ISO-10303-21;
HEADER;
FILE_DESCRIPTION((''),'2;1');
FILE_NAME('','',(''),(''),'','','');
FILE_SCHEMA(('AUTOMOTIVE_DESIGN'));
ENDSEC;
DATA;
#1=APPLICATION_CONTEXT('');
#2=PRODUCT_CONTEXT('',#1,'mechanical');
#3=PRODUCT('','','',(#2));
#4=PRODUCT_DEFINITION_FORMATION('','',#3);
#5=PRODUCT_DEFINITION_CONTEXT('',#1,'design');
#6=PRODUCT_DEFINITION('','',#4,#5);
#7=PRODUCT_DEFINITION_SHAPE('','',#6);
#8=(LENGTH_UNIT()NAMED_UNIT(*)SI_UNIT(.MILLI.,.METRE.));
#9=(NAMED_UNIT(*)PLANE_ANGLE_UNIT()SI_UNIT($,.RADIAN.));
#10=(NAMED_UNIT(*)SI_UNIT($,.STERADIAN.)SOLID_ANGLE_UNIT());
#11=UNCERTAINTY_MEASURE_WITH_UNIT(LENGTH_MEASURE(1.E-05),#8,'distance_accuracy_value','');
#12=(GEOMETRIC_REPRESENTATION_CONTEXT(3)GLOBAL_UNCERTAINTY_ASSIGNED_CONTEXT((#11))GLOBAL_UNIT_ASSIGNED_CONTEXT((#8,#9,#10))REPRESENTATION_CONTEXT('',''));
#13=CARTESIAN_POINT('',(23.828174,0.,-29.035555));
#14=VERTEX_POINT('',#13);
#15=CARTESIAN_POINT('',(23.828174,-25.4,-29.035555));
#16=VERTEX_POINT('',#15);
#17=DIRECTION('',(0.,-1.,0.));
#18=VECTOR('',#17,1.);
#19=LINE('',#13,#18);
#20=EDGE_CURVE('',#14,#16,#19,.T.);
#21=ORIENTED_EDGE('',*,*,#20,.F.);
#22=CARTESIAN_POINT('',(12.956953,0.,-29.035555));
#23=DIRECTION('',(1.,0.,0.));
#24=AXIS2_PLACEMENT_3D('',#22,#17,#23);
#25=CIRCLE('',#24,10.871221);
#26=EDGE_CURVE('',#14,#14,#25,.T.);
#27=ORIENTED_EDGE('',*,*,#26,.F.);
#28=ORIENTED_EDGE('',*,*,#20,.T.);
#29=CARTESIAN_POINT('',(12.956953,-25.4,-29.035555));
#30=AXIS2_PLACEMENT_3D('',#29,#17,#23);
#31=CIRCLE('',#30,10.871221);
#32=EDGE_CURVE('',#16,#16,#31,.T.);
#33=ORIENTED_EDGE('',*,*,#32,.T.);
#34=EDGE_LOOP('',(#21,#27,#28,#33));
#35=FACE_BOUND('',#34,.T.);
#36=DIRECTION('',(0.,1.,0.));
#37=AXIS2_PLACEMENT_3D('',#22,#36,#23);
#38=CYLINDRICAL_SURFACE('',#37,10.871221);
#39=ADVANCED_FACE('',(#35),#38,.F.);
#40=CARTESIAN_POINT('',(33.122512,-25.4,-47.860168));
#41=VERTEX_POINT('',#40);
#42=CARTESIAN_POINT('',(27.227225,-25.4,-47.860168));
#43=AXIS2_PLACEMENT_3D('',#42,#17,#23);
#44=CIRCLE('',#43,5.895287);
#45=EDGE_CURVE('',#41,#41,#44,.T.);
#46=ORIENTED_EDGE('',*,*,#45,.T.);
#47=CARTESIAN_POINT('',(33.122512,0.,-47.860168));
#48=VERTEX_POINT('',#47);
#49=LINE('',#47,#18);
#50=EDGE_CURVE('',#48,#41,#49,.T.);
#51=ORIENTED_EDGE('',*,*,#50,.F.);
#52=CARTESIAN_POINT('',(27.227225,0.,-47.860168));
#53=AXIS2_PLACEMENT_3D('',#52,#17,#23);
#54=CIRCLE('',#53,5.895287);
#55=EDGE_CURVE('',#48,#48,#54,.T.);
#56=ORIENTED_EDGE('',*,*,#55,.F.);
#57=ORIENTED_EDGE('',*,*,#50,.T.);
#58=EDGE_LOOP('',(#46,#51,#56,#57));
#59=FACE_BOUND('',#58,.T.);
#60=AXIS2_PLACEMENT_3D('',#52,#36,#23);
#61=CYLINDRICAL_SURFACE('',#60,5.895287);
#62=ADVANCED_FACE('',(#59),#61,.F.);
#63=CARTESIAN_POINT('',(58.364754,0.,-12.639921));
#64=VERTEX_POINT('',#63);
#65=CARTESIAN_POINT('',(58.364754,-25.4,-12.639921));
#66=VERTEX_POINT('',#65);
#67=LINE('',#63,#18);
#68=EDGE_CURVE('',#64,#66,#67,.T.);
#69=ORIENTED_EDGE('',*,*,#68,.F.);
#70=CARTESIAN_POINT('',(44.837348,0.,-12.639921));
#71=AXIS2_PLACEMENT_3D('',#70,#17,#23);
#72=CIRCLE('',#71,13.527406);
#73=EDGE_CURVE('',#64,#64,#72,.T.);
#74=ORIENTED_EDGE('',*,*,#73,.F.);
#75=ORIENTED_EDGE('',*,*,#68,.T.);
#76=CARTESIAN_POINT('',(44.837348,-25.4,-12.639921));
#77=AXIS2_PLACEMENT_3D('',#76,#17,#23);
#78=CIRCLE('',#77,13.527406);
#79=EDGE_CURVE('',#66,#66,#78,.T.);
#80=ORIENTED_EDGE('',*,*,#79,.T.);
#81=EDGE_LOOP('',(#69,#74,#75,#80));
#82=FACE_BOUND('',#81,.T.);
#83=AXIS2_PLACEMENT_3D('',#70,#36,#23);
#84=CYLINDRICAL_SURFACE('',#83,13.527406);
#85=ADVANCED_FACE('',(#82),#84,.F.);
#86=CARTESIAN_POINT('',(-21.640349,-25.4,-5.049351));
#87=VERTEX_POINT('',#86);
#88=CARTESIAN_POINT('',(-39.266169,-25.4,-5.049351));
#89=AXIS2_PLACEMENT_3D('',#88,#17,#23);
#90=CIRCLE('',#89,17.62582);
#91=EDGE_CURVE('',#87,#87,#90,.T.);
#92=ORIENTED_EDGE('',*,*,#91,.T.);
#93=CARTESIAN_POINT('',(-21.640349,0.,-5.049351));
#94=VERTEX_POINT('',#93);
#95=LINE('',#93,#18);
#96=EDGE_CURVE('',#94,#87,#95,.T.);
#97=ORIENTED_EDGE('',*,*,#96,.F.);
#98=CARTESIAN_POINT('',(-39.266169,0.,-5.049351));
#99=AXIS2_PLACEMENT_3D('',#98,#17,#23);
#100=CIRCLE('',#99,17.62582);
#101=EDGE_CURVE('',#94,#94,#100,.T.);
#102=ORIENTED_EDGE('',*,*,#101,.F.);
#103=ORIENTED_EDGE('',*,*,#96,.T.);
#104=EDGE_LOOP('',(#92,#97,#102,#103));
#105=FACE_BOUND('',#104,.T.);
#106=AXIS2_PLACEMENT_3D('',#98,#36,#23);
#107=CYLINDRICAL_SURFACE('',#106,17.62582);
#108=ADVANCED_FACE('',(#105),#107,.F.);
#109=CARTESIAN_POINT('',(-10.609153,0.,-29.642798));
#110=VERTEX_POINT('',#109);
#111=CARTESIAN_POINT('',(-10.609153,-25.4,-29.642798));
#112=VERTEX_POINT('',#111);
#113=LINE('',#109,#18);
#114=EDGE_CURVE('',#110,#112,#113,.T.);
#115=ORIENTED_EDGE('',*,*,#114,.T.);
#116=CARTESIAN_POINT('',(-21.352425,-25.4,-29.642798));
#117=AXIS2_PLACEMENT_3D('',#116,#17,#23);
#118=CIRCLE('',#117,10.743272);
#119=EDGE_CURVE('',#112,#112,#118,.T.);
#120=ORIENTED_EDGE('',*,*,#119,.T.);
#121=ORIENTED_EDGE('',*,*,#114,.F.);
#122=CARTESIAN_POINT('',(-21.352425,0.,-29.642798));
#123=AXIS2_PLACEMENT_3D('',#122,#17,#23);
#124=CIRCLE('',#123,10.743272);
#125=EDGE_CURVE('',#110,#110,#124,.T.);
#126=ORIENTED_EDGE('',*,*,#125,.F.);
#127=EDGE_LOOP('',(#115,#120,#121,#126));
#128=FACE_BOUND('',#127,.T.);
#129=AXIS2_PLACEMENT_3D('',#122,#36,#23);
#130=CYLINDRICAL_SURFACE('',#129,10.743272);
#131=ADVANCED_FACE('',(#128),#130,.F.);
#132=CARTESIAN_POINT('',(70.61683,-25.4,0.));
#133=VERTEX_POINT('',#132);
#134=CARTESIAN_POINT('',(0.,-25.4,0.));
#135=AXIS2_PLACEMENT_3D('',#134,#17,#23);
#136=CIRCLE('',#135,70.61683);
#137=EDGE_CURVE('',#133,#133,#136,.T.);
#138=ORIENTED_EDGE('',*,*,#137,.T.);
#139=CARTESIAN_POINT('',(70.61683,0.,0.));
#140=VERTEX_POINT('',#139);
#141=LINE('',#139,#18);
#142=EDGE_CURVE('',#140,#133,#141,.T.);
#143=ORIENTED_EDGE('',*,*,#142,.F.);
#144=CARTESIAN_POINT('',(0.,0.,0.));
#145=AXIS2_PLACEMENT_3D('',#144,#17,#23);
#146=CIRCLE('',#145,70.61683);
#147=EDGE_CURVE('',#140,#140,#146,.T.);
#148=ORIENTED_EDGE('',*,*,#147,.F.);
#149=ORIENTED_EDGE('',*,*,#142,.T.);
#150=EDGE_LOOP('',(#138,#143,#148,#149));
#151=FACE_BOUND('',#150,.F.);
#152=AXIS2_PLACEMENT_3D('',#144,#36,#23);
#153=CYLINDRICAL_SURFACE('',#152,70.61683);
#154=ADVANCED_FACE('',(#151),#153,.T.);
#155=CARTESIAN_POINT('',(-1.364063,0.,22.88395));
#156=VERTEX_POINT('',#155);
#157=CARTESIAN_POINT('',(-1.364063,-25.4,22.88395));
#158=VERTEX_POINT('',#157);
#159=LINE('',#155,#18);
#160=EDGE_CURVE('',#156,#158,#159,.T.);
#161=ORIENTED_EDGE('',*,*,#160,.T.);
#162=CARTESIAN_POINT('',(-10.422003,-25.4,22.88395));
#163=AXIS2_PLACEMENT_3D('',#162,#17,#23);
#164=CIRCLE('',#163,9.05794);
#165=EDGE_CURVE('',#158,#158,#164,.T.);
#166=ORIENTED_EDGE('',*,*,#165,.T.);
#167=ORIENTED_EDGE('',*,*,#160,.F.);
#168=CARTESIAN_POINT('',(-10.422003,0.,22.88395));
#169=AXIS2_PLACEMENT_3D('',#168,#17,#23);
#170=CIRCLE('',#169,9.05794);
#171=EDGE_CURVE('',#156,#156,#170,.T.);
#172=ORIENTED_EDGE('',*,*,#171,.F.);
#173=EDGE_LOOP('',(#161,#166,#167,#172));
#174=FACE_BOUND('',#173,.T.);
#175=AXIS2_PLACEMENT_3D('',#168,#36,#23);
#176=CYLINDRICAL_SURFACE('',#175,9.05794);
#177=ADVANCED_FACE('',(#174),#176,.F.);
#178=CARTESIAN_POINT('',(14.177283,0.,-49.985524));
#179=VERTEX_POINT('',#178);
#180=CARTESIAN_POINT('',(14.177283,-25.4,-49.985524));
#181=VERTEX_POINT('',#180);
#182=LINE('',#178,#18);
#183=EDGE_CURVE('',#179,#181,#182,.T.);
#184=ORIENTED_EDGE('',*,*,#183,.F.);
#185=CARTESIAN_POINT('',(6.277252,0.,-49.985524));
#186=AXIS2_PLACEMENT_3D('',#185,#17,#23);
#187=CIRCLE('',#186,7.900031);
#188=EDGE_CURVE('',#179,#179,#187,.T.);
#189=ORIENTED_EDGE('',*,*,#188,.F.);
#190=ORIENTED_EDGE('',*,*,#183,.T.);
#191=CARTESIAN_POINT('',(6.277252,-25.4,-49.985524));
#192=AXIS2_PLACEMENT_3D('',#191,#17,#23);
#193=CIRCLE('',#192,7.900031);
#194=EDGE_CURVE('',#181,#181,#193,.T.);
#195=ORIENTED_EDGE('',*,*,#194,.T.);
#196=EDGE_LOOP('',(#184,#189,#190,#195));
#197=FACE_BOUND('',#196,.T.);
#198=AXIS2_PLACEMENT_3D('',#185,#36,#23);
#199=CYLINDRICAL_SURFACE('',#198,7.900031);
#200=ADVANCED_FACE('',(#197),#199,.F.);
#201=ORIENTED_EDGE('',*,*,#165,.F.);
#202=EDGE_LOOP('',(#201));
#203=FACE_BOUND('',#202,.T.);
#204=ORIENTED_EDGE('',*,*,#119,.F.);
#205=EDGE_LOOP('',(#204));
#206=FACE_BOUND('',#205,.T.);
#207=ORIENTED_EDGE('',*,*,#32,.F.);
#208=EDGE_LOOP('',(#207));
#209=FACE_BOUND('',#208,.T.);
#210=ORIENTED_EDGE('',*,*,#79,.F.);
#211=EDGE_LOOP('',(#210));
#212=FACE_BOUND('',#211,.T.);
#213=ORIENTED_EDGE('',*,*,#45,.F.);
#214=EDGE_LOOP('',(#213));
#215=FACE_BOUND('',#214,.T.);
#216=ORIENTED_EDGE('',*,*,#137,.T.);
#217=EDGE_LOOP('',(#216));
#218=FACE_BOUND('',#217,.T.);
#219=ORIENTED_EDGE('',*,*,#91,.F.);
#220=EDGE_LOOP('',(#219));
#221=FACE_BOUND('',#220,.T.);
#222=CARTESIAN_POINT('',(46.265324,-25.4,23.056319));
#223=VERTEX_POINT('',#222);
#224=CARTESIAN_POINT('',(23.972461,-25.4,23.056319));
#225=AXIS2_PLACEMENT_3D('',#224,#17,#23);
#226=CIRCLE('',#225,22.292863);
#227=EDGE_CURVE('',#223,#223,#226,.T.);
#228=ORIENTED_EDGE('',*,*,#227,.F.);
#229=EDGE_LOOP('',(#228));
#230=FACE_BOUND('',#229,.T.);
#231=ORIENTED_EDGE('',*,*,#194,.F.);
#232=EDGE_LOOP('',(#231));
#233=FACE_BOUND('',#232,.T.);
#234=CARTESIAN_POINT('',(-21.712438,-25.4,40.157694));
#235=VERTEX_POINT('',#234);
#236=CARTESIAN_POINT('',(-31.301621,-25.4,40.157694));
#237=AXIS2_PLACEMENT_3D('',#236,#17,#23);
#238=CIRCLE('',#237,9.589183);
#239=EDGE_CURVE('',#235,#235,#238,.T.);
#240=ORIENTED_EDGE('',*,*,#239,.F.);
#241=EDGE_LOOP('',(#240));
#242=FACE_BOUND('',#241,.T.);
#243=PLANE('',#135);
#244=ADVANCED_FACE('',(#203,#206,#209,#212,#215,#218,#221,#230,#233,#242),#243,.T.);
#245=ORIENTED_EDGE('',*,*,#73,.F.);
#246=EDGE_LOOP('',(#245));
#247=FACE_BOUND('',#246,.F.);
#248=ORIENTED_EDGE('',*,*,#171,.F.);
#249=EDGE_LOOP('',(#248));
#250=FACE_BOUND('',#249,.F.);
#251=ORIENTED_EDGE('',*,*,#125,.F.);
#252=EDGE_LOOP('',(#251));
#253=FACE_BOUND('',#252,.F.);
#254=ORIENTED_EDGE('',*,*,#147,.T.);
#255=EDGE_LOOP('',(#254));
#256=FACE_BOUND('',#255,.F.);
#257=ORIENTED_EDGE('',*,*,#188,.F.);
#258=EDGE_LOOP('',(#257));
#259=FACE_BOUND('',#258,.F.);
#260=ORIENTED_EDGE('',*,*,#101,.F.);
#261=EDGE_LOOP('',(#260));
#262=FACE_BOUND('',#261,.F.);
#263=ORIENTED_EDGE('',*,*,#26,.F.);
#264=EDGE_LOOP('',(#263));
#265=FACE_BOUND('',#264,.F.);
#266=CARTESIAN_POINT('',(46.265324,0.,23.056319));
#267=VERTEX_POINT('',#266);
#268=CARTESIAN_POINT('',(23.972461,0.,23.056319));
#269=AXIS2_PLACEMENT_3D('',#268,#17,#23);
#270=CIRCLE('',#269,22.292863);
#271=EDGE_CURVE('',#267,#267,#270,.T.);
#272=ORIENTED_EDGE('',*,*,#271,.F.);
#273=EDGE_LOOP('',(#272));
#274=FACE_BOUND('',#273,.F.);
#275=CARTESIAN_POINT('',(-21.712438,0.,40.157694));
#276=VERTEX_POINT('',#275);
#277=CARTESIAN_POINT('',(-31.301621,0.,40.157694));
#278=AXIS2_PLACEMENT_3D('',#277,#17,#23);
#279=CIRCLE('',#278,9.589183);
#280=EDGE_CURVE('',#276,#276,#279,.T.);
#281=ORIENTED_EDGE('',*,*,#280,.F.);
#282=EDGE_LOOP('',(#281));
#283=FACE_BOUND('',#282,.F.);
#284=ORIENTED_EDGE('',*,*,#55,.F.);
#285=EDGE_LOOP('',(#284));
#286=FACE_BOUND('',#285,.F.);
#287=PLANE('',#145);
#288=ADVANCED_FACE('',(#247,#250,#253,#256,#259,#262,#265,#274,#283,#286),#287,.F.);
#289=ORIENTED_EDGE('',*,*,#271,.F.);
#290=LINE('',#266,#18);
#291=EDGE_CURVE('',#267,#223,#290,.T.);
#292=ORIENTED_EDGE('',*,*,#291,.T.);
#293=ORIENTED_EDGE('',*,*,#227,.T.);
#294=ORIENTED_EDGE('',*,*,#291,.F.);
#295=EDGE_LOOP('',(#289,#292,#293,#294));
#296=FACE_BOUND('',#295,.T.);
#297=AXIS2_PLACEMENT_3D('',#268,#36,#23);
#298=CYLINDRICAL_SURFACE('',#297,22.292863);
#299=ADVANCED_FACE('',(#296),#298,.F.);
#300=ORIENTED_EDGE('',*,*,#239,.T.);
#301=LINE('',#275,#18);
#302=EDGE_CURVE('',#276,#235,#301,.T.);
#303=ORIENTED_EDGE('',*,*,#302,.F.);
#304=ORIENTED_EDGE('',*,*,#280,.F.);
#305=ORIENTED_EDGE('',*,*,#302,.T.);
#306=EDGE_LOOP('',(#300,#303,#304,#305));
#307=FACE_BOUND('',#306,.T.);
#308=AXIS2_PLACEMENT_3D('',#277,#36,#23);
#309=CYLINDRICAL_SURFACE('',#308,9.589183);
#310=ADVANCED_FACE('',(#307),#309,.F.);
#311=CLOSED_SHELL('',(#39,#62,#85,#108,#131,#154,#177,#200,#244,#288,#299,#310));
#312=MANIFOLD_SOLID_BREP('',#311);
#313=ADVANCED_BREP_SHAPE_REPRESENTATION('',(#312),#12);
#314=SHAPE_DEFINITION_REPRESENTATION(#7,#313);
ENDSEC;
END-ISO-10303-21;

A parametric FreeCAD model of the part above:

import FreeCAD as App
import Part
import Sketcher
Q = App.Units.Quantity

doc = App.newDocument("Part")
body = doc.addObject("PartDesign::Body", "Body")

# Sketch on XZ plane
sketch1 = body.newObject("Sketcher::SketchObject", "Sketch")
sketch1.AttachmentSupport = (doc.getObject("XZ_Plane"), [""])
sketch1.MapMode = "FlatFace"
sketch1.addGeometry([
    Part.Circle(App.Vector(0, 0, 0), App.Vector(0, 0, 1), 70.61683),  # 0
    Part.Circle(App.Vector(-39.266169, -5.049351, 0), App.Vector(0, 0, 1), 17.62582),  # 1
    Part.Circle(App.Vector(-21.352425, -29.642798, 0), App.Vector(0, 0, 1), 10.743272),  # 2
    Part.Circle(App.Vector(6.277252, -49.985524, 0), App.Vector(0, 0, 1), 7.900031),  # 3
    Part.Circle(App.Vector(27.227225, -47.860168, 0), App.Vector(0, 0, 1), 5.895287),  # 4
    Part.Circle(App.Vector(12.956953, -29.035555, 0), App.Vector(0, 0, 1), 10.871221),  # 5
    Part.Circle(App.Vector(44.837348, -12.639921, 0), App.Vector(0, 0, 1), 13.527406),  # 6
    Part.Circle(App.Vector(-31.301621, 40.157694, 0), App.Vector(0, 0, 1), 9.589183),  # 7
    Part.Circle(App.Vector(-10.422003, 22.88395, 0), App.Vector(0, 0, 1), 9.05794),  # 8
    Part.Circle(App.Vector(23.972461, 23.056319, 0), App.Vector(0, 0, 1), 22.292863),  # 9
], False)
sketch1.addConstraint([
    Sketcher.Constraint("Coincident", 0, 3, -1, 1),
    Sketcher.Constraint("Diameter", 0, 141.23366),
    Sketcher.Constraint("Diameter", 1, 35.25164),
    Sketcher.Constraint("Diameter", 6, 27.054812),
    Sketcher.Constraint("Diameter", 8, 18.11588),
    Sketcher.Constraint("Diameter", 2, 21.486544),
    Sketcher.Constraint("Diameter", 3, 15.800062),
    Sketcher.Constraint("Diameter", 4, 11.790574),
    Sketcher.Constraint("Diameter", 5, 21.742442),
    Sketcher.Constraint("Diameter", 7, 19.178366),
    Sketcher.Constraint("Diameter", 9, 44.585726),
    Sketcher.Constraint("DistanceX", 3, 3, 5, 3, 6.679701),
    Sketcher.Constraint("DistanceY", 1, 3, 8, 3, 27.933301),
    Sketcher.Constraint("DistanceX", 1, 3, -1, 1, 39.266169),
    Sketcher.Constraint("DistanceY", 1, 3, -1, 1, 5.049351),
    Sketcher.Constraint("DistanceX", -1, 1, 3, 3, 6.277252),
    Sketcher.Constraint("DistanceY", 4, 3, -1, 1, 47.860168),
    Sketcher.Constraint("DistanceY", 6, 3, -1, 1, 12.639921),
    Sketcher.Constraint("DistanceX", 7, 3, -1, 1, 31.301621),
    Sketcher.Constraint("DistanceX", -1, 1, 9, 3, 23.972461),
    Sketcher.Constraint("DistanceY", -1, 1, 9, 3, 23.056319),
    Sketcher.Constraint("DistanceX", 2, 3, 4, 3, 48.57965),
    Sketcher.Constraint("DistanceY", 4, 3, 2, 3, 18.21737),
    Sketcher.Constraint("DistanceY", 3, 3, 5, 3, 20.949969),
    Sketcher.Constraint("DistanceX", 2, 3, 5, 3, 34.309378),
    Sketcher.Constraint("DistanceY", 2, 3, 7, 3, 69.800492),
    Sketcher.Constraint("DistanceY", 5, 3, 7, 3, 69.193249),
    Sketcher.Constraint("DistanceX", 7, 3, 6, 3, 76.138969),
    Sketcher.Constraint("DistanceX", 7, 3, 8, 3, 20.879618),
])
pad1 = body.newObject("PartDesign::Pad", "Pad")
pad1.Profile = sketch1
pad1.Length = Q("1 in")

doc.recompute()
